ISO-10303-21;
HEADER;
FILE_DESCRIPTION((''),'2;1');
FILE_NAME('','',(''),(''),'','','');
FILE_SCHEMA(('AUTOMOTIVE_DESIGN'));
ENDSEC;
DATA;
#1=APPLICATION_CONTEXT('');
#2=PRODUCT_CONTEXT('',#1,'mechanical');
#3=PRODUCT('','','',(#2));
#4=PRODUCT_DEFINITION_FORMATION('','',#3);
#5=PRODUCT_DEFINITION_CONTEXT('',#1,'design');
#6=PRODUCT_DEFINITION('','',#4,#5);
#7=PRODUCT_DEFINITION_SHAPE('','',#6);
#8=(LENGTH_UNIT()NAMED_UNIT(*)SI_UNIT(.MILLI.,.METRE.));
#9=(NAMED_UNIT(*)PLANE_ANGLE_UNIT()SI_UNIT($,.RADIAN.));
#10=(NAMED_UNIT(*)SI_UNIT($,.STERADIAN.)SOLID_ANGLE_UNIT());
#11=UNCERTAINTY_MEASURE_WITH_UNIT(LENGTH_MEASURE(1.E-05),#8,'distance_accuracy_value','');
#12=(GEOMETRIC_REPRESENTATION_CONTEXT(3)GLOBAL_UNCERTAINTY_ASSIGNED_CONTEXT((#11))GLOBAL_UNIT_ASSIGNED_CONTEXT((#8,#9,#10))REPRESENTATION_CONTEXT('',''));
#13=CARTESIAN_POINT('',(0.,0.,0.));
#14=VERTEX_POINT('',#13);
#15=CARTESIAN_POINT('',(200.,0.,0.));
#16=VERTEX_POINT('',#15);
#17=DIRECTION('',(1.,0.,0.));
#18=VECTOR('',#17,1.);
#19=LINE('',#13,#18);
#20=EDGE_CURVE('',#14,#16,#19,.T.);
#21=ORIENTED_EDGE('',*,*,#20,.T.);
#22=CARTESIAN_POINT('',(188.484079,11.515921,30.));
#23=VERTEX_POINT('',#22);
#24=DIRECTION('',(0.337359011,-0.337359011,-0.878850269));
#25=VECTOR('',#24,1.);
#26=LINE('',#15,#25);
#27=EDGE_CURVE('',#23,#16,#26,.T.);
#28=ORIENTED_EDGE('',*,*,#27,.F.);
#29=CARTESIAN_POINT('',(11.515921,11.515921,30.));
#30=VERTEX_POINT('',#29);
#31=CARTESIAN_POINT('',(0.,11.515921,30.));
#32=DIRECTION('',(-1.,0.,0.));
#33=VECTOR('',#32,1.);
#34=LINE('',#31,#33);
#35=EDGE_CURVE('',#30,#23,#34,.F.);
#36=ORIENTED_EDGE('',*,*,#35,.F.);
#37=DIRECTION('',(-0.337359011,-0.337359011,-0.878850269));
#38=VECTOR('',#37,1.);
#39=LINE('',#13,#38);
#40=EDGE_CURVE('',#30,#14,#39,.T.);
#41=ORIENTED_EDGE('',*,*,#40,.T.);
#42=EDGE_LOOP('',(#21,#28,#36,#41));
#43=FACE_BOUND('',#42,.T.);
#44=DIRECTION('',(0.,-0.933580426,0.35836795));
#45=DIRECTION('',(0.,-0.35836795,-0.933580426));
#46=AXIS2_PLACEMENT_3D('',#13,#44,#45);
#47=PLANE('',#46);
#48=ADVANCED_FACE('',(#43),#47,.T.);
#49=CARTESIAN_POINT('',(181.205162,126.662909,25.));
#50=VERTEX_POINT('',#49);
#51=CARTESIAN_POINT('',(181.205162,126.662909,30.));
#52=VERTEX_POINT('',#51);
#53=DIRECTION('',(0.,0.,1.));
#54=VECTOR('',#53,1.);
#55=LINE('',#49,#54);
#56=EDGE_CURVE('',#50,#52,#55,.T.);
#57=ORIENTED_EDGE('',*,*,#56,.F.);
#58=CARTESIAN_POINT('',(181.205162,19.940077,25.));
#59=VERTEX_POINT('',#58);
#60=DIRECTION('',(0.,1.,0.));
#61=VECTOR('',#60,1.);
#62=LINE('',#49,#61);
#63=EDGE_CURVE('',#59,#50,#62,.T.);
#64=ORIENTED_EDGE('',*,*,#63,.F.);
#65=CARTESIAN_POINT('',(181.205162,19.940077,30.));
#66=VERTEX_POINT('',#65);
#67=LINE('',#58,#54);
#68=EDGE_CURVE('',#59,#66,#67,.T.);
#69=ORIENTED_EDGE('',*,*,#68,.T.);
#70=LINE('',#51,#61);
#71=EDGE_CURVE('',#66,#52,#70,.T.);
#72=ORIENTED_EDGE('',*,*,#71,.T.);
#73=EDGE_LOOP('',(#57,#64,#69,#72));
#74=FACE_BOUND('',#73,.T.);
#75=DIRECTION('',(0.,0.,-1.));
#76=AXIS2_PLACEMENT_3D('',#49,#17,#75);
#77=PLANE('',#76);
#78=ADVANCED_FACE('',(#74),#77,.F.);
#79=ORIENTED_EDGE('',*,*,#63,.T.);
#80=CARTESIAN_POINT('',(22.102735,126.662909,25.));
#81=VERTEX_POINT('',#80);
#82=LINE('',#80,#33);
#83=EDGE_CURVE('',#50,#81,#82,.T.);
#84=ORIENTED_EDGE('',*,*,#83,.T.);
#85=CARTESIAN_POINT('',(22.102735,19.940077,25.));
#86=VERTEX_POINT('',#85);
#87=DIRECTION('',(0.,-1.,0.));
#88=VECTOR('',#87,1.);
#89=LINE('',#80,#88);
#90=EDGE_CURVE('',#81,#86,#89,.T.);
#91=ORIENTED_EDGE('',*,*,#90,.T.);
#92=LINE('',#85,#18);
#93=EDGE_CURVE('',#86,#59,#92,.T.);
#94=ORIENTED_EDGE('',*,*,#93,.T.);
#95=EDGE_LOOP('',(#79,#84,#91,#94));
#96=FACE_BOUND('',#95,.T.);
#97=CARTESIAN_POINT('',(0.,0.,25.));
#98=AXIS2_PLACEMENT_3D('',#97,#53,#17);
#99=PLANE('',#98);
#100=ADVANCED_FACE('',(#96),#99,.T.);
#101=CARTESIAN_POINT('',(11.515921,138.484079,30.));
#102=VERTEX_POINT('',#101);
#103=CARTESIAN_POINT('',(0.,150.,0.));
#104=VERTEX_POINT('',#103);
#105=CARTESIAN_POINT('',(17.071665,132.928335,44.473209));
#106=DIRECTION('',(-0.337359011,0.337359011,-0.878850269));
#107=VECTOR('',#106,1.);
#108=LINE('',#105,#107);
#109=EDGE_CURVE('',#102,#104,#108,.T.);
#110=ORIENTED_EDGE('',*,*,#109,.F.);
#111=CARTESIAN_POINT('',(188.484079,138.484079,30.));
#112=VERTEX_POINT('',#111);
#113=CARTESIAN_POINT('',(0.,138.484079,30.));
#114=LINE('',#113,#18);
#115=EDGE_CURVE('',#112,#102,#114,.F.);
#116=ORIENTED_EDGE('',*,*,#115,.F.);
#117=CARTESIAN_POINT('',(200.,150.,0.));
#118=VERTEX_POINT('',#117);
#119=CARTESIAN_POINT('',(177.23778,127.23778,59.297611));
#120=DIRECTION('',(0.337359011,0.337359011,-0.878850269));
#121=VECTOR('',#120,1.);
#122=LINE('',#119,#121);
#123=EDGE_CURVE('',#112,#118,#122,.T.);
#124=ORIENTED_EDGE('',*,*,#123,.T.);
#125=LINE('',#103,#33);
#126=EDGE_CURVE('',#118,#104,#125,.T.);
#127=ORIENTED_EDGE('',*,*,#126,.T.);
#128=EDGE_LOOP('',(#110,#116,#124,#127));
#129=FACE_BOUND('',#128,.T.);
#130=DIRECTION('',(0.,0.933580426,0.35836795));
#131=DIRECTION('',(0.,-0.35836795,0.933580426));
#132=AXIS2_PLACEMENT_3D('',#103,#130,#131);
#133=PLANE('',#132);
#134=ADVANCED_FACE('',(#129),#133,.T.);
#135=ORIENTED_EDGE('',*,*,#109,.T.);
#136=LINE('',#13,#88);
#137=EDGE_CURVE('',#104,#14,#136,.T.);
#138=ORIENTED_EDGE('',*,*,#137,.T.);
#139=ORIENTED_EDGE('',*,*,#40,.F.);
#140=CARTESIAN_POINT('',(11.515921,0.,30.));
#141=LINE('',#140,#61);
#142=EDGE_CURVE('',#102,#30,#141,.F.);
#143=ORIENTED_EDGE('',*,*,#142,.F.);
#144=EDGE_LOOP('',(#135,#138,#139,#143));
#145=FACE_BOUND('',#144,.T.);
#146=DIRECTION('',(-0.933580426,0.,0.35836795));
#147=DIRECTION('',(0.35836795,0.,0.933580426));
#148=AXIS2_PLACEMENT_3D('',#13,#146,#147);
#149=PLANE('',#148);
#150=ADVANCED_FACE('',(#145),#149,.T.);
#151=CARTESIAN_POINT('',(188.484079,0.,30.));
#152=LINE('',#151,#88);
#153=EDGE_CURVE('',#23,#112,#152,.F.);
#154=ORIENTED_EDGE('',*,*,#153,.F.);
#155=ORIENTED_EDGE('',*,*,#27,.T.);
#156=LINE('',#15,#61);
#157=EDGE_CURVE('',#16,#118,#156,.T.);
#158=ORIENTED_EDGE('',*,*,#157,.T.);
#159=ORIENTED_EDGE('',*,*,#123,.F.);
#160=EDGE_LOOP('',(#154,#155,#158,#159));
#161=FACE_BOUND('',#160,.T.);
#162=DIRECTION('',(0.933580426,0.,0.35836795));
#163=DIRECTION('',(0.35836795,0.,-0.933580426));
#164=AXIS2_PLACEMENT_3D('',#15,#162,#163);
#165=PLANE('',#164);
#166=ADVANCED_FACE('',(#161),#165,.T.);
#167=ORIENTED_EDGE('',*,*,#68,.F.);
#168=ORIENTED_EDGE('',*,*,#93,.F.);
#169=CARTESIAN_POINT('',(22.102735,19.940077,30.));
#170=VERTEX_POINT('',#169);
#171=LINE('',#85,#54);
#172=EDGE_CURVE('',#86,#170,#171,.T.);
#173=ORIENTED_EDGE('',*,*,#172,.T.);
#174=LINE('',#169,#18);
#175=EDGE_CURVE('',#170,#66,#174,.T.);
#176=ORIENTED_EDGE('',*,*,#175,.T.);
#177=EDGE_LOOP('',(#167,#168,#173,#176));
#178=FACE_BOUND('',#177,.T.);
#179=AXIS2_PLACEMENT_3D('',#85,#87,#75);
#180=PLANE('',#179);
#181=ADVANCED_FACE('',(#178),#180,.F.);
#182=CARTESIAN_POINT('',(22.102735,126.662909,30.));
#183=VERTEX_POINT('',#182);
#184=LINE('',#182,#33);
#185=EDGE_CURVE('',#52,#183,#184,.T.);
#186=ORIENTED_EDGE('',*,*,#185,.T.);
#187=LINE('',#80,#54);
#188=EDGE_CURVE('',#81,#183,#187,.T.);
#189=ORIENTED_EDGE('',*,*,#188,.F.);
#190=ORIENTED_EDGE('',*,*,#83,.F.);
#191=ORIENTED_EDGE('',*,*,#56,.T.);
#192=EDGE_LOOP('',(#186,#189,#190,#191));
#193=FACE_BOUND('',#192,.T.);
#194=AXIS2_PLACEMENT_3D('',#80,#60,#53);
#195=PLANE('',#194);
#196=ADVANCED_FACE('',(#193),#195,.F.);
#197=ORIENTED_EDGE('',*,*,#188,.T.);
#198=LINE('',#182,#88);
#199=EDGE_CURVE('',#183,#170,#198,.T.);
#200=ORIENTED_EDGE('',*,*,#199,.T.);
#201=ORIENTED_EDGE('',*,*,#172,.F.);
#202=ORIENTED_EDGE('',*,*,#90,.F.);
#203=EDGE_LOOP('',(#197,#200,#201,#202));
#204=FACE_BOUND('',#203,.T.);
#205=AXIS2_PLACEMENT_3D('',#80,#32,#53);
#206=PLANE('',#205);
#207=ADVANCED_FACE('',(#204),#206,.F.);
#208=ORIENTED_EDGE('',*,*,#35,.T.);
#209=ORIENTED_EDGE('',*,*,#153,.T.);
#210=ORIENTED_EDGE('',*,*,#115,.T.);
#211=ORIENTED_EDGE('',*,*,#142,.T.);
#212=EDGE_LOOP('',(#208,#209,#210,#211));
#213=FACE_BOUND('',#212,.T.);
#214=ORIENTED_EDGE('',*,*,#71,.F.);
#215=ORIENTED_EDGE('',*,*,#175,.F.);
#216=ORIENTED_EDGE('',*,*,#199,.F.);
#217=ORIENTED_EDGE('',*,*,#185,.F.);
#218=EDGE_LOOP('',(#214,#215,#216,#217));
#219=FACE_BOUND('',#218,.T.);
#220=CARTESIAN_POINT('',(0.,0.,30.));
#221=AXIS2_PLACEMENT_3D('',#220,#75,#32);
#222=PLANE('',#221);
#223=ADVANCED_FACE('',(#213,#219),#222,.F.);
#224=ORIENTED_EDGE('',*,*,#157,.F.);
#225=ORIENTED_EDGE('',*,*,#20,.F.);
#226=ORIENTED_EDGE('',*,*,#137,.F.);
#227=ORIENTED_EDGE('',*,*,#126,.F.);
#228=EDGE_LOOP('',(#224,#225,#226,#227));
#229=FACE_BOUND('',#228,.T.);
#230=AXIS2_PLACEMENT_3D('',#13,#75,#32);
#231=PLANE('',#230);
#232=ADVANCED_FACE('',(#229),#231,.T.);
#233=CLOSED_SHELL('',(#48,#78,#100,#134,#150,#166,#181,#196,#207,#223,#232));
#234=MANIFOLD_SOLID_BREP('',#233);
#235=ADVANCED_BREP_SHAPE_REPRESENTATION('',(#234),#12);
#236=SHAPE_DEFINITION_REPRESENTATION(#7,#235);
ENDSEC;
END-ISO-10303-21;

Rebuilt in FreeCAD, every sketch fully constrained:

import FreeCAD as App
import Part
import Sketcher

V = App.Vector
Q = App.Units.Quantity


def add_polygon(sketch, points):
    """Adds a closed chain of lines whose ends are joined by coincident constraints."""
    first, n = sketch.GeometryCount, len(points)
    for a, b in zip(points, points[1:] + points[:1]):
        sketch.addGeometry(Part.LineSegment(App.Vector(*a, 0), App.Vector(*b, 0)), False)
    for i in range(n):
        sketch.addConstraint(Sketcher.Constraint("Coincident", first + i, 2, first + (i + 1) % n, 1))

doc = App.newDocument("Part")
body = doc.addObject("PartDesign::Body", "Body")

# Sketch on XY plane
sketch1 = body.newObject("Sketcher::SketchObject", "Sketch")
sketch1.AttachmentSupport = (doc.getObject("XY_Plane"), [""])
sketch1.MapMode = "FlatFace"
add_polygon(sketch1, [(0, 150), (0, 0), (200, 0), (200, 150)])  # lines 0-3
sketch1.addConstraint([
    Sketcher.Constraint("Vertical", 0),
    Sketcher.Constraint("Horizontal", 1),
    Sketcher.Constraint("Vertical", 2),
    Sketcher.Constraint("Horizontal", 3),
    Sketcher.Constraint("Coincident", 0, 2, -1, 1),
    Sketcher.Constraint("DistanceX", 1, 1, 1, 2, Q("200 mm")),
    Sketcher.Constraint("DistanceY", 0, 2, 0, 1, Q("150 mm")),
])
pad1 = body.newObject("PartDesign::Pad", "Pad")
pad1.Profile = sketch1
pad1.Length = 30
pad1.TaperAngle = -21

# Sketch on XY plane
sketch2 = body.newObject("Sketcher::SketchObject", "Sketch001")
sketch2.AttachmentSupport = (doc.getObject("XY_Plane"), [""])
sketch2.MapMode = "FlatFace"
sketch2.AttachmentOffset = App.Placement(V(0, 0, 30), App.Rotation())
add_polygon(sketch2, [(22, 127), (22, 20), (181, 20), (181, 127)])  # lines 0-3
sketch2.addConstraint([
    Sketcher.Constraint("Vertical", 0),
    Sketcher.Constraint("Horizontal", 1),
    Sketcher.Constraint("Vertical", 2),
    Sketcher.Constraint("Horizontal", 3),
    Sketcher.Constraint("DistanceX", 1, 1, 1, 2, Q("159.102427 mm")),
    Sketcher.Constraint("DistanceY", 0, 2, 0, 1, Q("106.722833 mm")),
    Sketcher.Constraint("DistanceX", -1, 1, 1, 2, Q("181.205162 mm")),
    Sketcher.Constraint("DistanceY", -1, 1, 2, 2, Q("126.662909 mm")),
])
pocket1 = body.newObject("PartDesign::Pocket", "Pocket")
pocket1.Profile = sketch2
pocket1.Length = 5

doc.recompute()
